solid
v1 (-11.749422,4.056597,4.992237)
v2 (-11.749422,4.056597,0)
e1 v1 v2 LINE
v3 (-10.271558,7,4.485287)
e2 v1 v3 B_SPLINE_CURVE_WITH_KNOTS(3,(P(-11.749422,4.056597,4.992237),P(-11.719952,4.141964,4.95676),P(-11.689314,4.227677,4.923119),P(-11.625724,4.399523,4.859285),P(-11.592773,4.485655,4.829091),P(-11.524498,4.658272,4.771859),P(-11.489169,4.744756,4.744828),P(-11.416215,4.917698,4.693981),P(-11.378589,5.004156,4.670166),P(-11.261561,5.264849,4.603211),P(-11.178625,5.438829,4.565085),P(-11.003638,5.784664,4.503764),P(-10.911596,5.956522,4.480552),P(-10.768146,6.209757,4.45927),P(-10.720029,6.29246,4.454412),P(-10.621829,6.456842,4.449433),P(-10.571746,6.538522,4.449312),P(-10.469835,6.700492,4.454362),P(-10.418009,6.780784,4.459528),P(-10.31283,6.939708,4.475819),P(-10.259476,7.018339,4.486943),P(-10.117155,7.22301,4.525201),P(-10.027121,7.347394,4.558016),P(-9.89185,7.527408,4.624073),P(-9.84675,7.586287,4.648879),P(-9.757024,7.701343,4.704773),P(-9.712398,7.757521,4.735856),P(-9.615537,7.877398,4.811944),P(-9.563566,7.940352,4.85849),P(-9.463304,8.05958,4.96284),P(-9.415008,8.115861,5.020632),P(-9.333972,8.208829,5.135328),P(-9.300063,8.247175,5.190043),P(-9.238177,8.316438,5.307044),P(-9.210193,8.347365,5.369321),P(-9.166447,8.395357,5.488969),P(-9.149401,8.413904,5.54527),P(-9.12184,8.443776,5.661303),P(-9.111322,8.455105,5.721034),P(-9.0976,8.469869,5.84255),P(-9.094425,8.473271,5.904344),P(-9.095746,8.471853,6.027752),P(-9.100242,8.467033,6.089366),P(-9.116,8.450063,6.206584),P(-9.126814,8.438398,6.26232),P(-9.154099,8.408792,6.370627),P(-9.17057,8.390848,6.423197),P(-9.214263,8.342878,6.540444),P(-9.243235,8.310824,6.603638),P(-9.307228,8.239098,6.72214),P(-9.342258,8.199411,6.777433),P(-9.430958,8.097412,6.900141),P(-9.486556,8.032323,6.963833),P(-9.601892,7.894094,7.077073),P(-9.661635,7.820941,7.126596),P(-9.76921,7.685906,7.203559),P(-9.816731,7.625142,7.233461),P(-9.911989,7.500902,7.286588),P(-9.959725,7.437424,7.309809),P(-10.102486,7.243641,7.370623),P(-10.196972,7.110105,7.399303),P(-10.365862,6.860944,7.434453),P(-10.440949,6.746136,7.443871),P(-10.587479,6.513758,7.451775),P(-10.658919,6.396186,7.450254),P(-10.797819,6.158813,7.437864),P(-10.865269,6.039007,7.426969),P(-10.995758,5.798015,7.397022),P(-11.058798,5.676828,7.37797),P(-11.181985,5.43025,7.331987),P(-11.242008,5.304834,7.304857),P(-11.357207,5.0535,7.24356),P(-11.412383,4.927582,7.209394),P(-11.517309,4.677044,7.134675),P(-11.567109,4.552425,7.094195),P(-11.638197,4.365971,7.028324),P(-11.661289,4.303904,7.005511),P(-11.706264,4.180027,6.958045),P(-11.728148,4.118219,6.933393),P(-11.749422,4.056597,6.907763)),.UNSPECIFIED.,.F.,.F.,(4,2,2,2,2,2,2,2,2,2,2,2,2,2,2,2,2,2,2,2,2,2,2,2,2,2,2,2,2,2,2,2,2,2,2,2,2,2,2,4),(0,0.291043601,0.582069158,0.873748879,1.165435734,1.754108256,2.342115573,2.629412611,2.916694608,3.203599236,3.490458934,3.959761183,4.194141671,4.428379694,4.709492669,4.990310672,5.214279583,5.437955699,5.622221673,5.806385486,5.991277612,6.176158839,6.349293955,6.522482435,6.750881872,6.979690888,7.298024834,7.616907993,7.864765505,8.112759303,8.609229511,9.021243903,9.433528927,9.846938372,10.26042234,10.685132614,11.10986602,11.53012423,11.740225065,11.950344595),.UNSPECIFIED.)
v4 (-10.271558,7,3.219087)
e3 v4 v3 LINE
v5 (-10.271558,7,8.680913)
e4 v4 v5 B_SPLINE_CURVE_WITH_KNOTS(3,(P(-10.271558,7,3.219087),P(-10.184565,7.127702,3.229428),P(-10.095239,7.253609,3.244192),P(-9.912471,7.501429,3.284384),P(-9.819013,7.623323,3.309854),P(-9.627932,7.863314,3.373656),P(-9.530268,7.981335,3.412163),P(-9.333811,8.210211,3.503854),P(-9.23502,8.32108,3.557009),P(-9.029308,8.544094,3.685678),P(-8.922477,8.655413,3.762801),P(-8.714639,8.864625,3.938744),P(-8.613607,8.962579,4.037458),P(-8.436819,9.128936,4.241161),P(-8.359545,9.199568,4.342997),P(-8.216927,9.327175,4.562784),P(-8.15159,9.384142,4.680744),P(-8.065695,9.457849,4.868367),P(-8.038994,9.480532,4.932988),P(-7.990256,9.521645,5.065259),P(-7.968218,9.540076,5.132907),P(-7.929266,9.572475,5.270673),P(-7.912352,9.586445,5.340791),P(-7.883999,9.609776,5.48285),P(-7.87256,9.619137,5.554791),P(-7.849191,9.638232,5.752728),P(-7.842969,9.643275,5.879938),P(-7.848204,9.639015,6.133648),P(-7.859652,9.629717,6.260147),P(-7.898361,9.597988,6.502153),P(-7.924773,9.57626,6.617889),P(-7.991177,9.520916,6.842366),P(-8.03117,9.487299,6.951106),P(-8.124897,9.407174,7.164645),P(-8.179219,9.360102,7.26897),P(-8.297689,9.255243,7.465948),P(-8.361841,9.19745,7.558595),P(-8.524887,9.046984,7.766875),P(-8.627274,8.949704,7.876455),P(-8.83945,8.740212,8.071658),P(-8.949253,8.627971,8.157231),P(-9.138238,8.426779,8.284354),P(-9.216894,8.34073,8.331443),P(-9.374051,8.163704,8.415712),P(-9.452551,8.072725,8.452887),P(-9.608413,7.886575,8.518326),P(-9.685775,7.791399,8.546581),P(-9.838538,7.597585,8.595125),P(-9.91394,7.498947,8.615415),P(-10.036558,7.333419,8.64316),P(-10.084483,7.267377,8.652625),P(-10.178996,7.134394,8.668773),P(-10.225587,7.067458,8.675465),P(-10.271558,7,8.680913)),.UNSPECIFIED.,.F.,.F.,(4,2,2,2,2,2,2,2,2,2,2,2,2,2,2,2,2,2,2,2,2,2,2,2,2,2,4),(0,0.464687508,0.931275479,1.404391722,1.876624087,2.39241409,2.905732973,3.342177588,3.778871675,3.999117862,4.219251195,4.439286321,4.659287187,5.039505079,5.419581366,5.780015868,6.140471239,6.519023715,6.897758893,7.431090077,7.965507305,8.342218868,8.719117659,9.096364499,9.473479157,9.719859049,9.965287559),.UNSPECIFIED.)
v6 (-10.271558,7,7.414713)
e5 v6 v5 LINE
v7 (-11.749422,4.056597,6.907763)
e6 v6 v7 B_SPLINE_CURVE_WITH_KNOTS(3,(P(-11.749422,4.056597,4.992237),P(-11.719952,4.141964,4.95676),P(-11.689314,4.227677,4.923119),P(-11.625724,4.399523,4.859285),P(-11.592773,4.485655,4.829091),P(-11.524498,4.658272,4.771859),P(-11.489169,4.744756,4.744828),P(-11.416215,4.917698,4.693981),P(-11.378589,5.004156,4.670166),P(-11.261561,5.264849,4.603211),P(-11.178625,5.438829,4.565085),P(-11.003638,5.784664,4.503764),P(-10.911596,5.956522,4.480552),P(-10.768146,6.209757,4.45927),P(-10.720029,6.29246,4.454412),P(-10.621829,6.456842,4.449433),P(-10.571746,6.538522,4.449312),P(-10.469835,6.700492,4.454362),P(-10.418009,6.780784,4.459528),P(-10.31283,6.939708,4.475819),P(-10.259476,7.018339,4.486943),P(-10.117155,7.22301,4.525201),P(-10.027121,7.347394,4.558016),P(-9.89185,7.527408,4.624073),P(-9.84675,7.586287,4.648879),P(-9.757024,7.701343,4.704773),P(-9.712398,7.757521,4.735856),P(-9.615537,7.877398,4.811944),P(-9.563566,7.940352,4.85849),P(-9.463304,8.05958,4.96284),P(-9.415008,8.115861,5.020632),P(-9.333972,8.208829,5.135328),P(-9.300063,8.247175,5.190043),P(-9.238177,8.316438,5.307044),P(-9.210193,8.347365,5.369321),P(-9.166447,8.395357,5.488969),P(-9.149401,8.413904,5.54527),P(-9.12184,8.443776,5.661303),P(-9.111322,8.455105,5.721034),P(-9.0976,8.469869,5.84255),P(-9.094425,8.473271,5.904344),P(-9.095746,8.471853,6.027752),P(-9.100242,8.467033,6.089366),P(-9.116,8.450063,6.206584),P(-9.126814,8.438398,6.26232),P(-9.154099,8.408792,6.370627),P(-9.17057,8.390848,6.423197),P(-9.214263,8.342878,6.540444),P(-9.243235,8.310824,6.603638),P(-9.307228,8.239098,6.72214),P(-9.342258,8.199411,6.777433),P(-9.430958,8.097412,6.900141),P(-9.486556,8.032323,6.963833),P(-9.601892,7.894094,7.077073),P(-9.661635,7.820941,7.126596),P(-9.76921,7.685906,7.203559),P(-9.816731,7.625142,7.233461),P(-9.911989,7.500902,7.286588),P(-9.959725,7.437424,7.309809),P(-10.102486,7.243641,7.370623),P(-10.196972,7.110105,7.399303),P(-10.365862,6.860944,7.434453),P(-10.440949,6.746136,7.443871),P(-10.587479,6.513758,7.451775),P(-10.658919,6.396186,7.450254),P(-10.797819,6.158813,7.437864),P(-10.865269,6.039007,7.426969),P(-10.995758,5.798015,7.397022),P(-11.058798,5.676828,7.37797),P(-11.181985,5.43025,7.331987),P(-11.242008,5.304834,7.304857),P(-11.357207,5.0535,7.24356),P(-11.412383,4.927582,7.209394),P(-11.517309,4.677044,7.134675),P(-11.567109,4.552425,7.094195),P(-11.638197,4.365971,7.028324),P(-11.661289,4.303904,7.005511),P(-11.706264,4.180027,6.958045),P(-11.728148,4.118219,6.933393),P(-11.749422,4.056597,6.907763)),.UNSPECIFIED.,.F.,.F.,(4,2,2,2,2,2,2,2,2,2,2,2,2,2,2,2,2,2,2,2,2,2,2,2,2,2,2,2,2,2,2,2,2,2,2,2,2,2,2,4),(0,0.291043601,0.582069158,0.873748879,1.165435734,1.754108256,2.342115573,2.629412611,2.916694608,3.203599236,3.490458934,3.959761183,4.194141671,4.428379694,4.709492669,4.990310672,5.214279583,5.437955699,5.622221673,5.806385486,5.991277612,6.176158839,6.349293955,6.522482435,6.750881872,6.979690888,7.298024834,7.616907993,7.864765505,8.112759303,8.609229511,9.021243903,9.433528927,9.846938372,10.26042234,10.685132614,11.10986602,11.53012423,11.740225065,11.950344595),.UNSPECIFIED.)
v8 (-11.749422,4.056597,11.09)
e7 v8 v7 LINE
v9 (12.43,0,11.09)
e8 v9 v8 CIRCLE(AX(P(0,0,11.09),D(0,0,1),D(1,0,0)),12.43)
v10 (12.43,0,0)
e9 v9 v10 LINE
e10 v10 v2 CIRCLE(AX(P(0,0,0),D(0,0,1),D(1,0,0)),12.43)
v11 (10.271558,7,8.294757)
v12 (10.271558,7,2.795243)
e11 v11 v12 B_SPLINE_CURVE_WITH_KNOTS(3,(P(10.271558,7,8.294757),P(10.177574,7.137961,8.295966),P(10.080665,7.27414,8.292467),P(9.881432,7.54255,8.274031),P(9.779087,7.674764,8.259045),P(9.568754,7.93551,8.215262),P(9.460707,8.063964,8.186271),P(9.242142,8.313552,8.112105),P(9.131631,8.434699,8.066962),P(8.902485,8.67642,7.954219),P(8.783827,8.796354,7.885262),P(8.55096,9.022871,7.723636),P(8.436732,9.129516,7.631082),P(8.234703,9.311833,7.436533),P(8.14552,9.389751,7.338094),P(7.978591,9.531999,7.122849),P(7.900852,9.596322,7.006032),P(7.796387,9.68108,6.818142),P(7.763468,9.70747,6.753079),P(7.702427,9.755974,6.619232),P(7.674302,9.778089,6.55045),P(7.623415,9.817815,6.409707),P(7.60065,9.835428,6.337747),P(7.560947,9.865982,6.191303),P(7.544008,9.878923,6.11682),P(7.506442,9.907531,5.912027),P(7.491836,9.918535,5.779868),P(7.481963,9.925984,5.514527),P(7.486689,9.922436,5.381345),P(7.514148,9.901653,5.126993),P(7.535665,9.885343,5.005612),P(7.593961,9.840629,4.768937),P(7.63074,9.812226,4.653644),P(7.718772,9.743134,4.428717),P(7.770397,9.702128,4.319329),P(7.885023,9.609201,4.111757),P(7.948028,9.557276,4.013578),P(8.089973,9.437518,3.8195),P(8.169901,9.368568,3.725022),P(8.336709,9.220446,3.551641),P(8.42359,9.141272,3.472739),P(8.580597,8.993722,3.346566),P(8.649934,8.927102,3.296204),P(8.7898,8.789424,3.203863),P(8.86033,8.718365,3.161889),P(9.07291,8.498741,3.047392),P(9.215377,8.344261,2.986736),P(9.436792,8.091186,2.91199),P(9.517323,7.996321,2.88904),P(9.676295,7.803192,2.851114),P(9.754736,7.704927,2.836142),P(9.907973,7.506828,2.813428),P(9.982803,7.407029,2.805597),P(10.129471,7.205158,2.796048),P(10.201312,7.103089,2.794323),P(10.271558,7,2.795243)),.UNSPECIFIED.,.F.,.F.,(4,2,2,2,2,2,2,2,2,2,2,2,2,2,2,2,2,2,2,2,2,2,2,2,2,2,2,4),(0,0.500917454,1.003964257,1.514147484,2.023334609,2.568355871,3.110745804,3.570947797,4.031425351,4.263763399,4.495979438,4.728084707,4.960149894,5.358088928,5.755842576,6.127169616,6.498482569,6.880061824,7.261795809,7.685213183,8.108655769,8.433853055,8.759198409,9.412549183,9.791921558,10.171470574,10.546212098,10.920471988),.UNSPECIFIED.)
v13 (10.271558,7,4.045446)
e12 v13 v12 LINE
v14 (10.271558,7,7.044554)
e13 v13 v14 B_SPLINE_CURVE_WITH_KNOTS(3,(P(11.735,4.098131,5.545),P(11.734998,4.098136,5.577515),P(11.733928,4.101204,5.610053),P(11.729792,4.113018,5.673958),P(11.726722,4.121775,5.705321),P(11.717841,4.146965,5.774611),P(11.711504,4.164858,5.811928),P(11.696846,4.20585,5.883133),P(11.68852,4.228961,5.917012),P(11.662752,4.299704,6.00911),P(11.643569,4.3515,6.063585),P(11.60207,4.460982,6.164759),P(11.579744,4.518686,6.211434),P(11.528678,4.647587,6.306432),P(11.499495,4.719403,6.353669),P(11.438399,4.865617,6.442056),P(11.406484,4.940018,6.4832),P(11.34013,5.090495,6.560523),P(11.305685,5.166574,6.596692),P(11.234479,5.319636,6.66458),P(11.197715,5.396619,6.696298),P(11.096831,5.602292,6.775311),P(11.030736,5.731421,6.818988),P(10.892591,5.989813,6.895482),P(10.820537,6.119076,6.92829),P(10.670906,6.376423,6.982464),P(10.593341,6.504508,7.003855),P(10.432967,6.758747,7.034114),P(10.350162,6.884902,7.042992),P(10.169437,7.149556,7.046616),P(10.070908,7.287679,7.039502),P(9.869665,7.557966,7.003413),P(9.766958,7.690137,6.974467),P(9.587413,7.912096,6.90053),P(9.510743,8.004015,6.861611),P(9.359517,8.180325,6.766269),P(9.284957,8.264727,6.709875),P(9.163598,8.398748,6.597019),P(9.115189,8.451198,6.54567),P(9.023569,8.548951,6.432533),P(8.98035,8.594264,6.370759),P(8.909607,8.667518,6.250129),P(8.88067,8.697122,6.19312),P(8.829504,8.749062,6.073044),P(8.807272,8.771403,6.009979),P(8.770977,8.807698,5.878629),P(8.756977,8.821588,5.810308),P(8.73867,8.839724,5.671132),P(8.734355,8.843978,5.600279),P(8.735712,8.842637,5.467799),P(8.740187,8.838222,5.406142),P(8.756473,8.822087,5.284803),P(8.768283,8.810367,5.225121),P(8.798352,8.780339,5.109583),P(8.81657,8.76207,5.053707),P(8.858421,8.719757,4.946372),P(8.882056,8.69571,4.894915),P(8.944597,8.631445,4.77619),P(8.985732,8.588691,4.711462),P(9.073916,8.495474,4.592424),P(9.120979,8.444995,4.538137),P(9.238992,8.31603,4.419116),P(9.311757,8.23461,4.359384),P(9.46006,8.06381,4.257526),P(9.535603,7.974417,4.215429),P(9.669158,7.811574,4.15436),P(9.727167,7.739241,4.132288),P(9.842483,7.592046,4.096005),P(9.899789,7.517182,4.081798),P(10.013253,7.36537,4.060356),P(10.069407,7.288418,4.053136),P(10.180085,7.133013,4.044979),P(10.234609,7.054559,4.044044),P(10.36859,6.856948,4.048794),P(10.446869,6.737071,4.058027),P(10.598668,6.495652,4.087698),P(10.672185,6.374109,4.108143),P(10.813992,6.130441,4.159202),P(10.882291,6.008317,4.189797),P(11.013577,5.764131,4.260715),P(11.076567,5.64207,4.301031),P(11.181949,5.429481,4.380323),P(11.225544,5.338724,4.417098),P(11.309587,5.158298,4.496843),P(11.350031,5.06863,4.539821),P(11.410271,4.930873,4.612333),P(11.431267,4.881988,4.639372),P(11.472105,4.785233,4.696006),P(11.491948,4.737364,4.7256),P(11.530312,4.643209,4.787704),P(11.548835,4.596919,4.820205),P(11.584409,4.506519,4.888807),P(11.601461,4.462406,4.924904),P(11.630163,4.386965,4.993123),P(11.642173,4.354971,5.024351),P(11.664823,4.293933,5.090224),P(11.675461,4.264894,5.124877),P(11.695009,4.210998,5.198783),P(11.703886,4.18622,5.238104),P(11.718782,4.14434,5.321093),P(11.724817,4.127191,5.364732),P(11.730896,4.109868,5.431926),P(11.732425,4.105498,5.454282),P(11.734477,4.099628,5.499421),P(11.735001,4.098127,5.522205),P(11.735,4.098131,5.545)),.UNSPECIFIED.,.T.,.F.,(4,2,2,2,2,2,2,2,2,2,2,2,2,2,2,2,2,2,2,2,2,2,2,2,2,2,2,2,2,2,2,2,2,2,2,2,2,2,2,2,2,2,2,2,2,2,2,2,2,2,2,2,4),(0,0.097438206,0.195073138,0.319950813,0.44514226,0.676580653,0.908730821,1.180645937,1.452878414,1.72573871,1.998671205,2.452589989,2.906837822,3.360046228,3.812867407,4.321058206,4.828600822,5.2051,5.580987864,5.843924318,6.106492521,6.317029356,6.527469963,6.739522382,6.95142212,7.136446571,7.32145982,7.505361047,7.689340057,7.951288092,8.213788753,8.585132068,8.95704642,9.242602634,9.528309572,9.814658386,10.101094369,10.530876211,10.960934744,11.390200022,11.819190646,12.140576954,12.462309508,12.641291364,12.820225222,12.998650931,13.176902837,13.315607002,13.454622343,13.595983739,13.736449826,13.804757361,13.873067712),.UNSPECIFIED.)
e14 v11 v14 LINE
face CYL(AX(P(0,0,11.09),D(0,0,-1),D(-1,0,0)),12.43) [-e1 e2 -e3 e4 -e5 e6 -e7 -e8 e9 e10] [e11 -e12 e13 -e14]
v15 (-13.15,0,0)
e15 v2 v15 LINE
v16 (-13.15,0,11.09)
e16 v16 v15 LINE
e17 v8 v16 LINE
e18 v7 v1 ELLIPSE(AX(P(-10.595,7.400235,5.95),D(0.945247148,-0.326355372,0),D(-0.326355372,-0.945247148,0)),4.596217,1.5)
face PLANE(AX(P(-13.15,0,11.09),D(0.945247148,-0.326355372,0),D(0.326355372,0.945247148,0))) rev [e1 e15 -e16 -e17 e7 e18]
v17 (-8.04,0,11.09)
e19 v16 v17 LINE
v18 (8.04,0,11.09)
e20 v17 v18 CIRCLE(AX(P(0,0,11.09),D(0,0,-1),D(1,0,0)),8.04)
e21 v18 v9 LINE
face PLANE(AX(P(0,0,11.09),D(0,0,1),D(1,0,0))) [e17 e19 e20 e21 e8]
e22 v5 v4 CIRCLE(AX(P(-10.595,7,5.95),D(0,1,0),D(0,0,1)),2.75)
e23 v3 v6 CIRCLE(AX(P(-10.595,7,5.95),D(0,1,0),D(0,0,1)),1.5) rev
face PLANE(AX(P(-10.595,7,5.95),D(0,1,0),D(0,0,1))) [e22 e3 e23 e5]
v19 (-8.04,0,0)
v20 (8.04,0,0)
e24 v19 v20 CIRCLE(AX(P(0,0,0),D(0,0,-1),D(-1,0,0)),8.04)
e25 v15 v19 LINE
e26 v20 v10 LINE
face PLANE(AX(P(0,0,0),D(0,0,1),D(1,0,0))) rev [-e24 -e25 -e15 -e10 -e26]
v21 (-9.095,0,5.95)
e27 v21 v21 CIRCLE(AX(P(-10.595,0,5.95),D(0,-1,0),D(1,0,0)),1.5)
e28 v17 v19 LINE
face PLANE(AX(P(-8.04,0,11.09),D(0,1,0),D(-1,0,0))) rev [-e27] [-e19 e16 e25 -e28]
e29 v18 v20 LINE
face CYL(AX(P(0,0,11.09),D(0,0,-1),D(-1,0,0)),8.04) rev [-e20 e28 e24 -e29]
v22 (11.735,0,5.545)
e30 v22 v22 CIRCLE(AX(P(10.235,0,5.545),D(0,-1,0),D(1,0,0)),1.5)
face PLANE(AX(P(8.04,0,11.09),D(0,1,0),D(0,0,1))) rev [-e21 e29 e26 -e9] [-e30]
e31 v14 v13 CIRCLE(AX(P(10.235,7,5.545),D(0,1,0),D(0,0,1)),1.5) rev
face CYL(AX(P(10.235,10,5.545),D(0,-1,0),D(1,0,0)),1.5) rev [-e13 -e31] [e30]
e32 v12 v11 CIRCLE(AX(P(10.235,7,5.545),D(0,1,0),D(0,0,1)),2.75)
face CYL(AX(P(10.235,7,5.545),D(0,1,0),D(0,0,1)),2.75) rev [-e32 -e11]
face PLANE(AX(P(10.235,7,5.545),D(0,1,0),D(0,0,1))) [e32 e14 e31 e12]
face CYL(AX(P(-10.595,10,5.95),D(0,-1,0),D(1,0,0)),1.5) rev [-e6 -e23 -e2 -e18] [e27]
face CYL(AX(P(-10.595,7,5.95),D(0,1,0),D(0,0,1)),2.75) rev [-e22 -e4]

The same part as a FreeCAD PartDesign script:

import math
import FreeCAD as App
import Part
import Sketcher
Q = App.Units.Quantity

doc = App.newDocument("Part")
body = doc.addObject("PartDesign::Body", "Body")

# Sketch on XY plane
sketch1 = body.newObject("Sketcher::SketchObject", "Sketch")
sketch1.AttachmentSupport = (doc.getObject("XY_Plane"), [""])
sketch1.MapMode = "FlatFace"
sketch1.addGeometry([
    Part.LineSegment(App.Vector(-13.2, 0, 0), App.Vector(-8, 0, 0)),  # 0
    Part.ArcOfCircle(Part.Circle(App.Vector(0, 0, 0), App.Vector(0, 0, 1), 8), math.radians(90), math.radians(180)),  # 1
    Part.ArcOfCircle(Part.Circle(App.Vector(0, 0, 0), App.Vector(0, 0, 1), 8), math.radians(0), math.radians(90)),  # 2
    Part.LineSegment(App.Vector(8, 0, 0), App.Vector(12.4, 0, 0)),  # 3
    Part.ArcOfCircle(Part.Circle(App.Vector(0, 0, 0), App.Vector(0, 0, 1), 12.4), math.radians(0), math.radians(161)),  # 4
    Part.LineSegment(App.Vector(-11.7, 4.1, 0), App.Vector(-13.2, 0, 0)),  # 5
], False)
sketch1.addConstraint([
    Sketcher.Constraint("Coincident", 0, 2, 1, 2),
    Sketcher.Constraint("Tangent", 1, 1, 2, 2),
    Sketcher.Constraint("Coincident", 2, 1, 3, 1),
    Sketcher.Constraint("Coincident", 3, 2, 4, 1),
    Sketcher.Constraint("Tangent", 4, 2, 5, 1),
    Sketcher.Constraint("Coincident", 5, 2, 0, 1),
    Sketcher.Constraint("Horizontal", 0),
    Sketcher.Constraint("Horizontal", 3),
    Sketcher.Constraint("Coincident", 1, 3, -1, 1),
    Sketcher.Constraint("Coincident", 4, 3, -1, 1),
    Sketcher.Constraint("Equal", 1, 2),
    Sketcher.Constraint("PointOnObject", 0, 2, -1),
    Sketcher.Constraint("PointOnObject", 1, 1, -2),
    Sketcher.Constraint("PointOnObject", 2, 1, -1),
    Sketcher.Constraint("Radius", 1, Q("8.04 mm")),
    Sketcher.Constraint("Radius", 4, Q("12.43 mm")),
    Sketcher.Constraint("DistanceX", 0, 1, 0, 2, Q("5.11 mm")),
])
pad1 = body.newObject("PartDesign::Pad", "Pad")
pad1.Profile = sketch1
pad1.Length = 11.09

# Sketch on XZ plane
sketch2 = body.newObject("Sketcher::SketchObject", "Sketch001")
sketch2.AttachmentSupport = (doc.getObject("XZ_Plane"), [""])
sketch2.MapMode = "FlatFace"
sketch2.addGeometry([
    Part.Circle(App.Vector(-10.6, 6, 0), App.Vector(0, 0, 1), 1.5),
    Part.Circle(App.Vector(10.2, 5.5, 0), App.Vector(0, 0, 1), 1.5),
], False)
sketch2.addConstraint([
    Sketcher.Constraint("Equal", 0, 1),
    Sketcher.Constraint("Diameter", 0, Q("3 mm")),
    Sketcher.Constraint("DistanceY", -1, 1, 0, 3, Q("5.95 mm")),
    Sketcher.Constraint("DistanceX", 0, 3, 1, 3, Q("20.83 mm")),
    Sketcher.Constraint("DistanceX", 0, 3, -1, 1, Q("10.595 mm")),
    Sketcher.Constraint("DistanceY", -1, 1, 1, 3, Q("5.545 mm")),
])
pocket1 = body.newObject("PartDesign::Pocket", "Pocket")
pocket1.Profile = sketch2
pocket1.Length = 10

# Sketch on XZ plane
sketch3 = body.newObject("Sketcher::SketchObject", "Sketch002")
sketch3.AttachmentSupport = (doc.getObject("XZ_Plane"), [""])
sketch3.MapMode = "FlatFace"
sketch3.AttachmentOffset = App.Placement(App.Vector(0, 0, -9.5), App.Rotation())
sketch3.addGeometry([
    Part.Circle(App.Vector(-10.6, 6, 0), App.Vector(0, 0, 1), 2.8),
    Part.Circle(App.Vector(10.2, 5.5, 0), App.Vector(0, 0, 1), 2.8),
], False)
sketch3.addConstraint([
    Sketcher.Constraint("Equal", 0, 1),
    Sketcher.Constraint("Diameter", 0, Q("5.5 mm")),
    Sketcher.Constraint("DistanceY", -1, 1, 0, 3, Q("5.95 mm")),
    Sketcher.Constraint("DistanceX", 0, 3, 1, 3, Q("20.83 mm")),
    Sketcher.Constraint("DistanceX", 0, 3, -1, 1, Q("10.595 mm")),
    Sketcher.Constraint("DistanceY", -1, 1, 1, 3, Q("5.545 mm")),
])
pocket2 = body.newObject("PartDesign::Pocket", "Pocket001")
pocket2.Profile = sketch3
pocket2.Length = 5
pocket2.Midplane = True

doc.recompute()
